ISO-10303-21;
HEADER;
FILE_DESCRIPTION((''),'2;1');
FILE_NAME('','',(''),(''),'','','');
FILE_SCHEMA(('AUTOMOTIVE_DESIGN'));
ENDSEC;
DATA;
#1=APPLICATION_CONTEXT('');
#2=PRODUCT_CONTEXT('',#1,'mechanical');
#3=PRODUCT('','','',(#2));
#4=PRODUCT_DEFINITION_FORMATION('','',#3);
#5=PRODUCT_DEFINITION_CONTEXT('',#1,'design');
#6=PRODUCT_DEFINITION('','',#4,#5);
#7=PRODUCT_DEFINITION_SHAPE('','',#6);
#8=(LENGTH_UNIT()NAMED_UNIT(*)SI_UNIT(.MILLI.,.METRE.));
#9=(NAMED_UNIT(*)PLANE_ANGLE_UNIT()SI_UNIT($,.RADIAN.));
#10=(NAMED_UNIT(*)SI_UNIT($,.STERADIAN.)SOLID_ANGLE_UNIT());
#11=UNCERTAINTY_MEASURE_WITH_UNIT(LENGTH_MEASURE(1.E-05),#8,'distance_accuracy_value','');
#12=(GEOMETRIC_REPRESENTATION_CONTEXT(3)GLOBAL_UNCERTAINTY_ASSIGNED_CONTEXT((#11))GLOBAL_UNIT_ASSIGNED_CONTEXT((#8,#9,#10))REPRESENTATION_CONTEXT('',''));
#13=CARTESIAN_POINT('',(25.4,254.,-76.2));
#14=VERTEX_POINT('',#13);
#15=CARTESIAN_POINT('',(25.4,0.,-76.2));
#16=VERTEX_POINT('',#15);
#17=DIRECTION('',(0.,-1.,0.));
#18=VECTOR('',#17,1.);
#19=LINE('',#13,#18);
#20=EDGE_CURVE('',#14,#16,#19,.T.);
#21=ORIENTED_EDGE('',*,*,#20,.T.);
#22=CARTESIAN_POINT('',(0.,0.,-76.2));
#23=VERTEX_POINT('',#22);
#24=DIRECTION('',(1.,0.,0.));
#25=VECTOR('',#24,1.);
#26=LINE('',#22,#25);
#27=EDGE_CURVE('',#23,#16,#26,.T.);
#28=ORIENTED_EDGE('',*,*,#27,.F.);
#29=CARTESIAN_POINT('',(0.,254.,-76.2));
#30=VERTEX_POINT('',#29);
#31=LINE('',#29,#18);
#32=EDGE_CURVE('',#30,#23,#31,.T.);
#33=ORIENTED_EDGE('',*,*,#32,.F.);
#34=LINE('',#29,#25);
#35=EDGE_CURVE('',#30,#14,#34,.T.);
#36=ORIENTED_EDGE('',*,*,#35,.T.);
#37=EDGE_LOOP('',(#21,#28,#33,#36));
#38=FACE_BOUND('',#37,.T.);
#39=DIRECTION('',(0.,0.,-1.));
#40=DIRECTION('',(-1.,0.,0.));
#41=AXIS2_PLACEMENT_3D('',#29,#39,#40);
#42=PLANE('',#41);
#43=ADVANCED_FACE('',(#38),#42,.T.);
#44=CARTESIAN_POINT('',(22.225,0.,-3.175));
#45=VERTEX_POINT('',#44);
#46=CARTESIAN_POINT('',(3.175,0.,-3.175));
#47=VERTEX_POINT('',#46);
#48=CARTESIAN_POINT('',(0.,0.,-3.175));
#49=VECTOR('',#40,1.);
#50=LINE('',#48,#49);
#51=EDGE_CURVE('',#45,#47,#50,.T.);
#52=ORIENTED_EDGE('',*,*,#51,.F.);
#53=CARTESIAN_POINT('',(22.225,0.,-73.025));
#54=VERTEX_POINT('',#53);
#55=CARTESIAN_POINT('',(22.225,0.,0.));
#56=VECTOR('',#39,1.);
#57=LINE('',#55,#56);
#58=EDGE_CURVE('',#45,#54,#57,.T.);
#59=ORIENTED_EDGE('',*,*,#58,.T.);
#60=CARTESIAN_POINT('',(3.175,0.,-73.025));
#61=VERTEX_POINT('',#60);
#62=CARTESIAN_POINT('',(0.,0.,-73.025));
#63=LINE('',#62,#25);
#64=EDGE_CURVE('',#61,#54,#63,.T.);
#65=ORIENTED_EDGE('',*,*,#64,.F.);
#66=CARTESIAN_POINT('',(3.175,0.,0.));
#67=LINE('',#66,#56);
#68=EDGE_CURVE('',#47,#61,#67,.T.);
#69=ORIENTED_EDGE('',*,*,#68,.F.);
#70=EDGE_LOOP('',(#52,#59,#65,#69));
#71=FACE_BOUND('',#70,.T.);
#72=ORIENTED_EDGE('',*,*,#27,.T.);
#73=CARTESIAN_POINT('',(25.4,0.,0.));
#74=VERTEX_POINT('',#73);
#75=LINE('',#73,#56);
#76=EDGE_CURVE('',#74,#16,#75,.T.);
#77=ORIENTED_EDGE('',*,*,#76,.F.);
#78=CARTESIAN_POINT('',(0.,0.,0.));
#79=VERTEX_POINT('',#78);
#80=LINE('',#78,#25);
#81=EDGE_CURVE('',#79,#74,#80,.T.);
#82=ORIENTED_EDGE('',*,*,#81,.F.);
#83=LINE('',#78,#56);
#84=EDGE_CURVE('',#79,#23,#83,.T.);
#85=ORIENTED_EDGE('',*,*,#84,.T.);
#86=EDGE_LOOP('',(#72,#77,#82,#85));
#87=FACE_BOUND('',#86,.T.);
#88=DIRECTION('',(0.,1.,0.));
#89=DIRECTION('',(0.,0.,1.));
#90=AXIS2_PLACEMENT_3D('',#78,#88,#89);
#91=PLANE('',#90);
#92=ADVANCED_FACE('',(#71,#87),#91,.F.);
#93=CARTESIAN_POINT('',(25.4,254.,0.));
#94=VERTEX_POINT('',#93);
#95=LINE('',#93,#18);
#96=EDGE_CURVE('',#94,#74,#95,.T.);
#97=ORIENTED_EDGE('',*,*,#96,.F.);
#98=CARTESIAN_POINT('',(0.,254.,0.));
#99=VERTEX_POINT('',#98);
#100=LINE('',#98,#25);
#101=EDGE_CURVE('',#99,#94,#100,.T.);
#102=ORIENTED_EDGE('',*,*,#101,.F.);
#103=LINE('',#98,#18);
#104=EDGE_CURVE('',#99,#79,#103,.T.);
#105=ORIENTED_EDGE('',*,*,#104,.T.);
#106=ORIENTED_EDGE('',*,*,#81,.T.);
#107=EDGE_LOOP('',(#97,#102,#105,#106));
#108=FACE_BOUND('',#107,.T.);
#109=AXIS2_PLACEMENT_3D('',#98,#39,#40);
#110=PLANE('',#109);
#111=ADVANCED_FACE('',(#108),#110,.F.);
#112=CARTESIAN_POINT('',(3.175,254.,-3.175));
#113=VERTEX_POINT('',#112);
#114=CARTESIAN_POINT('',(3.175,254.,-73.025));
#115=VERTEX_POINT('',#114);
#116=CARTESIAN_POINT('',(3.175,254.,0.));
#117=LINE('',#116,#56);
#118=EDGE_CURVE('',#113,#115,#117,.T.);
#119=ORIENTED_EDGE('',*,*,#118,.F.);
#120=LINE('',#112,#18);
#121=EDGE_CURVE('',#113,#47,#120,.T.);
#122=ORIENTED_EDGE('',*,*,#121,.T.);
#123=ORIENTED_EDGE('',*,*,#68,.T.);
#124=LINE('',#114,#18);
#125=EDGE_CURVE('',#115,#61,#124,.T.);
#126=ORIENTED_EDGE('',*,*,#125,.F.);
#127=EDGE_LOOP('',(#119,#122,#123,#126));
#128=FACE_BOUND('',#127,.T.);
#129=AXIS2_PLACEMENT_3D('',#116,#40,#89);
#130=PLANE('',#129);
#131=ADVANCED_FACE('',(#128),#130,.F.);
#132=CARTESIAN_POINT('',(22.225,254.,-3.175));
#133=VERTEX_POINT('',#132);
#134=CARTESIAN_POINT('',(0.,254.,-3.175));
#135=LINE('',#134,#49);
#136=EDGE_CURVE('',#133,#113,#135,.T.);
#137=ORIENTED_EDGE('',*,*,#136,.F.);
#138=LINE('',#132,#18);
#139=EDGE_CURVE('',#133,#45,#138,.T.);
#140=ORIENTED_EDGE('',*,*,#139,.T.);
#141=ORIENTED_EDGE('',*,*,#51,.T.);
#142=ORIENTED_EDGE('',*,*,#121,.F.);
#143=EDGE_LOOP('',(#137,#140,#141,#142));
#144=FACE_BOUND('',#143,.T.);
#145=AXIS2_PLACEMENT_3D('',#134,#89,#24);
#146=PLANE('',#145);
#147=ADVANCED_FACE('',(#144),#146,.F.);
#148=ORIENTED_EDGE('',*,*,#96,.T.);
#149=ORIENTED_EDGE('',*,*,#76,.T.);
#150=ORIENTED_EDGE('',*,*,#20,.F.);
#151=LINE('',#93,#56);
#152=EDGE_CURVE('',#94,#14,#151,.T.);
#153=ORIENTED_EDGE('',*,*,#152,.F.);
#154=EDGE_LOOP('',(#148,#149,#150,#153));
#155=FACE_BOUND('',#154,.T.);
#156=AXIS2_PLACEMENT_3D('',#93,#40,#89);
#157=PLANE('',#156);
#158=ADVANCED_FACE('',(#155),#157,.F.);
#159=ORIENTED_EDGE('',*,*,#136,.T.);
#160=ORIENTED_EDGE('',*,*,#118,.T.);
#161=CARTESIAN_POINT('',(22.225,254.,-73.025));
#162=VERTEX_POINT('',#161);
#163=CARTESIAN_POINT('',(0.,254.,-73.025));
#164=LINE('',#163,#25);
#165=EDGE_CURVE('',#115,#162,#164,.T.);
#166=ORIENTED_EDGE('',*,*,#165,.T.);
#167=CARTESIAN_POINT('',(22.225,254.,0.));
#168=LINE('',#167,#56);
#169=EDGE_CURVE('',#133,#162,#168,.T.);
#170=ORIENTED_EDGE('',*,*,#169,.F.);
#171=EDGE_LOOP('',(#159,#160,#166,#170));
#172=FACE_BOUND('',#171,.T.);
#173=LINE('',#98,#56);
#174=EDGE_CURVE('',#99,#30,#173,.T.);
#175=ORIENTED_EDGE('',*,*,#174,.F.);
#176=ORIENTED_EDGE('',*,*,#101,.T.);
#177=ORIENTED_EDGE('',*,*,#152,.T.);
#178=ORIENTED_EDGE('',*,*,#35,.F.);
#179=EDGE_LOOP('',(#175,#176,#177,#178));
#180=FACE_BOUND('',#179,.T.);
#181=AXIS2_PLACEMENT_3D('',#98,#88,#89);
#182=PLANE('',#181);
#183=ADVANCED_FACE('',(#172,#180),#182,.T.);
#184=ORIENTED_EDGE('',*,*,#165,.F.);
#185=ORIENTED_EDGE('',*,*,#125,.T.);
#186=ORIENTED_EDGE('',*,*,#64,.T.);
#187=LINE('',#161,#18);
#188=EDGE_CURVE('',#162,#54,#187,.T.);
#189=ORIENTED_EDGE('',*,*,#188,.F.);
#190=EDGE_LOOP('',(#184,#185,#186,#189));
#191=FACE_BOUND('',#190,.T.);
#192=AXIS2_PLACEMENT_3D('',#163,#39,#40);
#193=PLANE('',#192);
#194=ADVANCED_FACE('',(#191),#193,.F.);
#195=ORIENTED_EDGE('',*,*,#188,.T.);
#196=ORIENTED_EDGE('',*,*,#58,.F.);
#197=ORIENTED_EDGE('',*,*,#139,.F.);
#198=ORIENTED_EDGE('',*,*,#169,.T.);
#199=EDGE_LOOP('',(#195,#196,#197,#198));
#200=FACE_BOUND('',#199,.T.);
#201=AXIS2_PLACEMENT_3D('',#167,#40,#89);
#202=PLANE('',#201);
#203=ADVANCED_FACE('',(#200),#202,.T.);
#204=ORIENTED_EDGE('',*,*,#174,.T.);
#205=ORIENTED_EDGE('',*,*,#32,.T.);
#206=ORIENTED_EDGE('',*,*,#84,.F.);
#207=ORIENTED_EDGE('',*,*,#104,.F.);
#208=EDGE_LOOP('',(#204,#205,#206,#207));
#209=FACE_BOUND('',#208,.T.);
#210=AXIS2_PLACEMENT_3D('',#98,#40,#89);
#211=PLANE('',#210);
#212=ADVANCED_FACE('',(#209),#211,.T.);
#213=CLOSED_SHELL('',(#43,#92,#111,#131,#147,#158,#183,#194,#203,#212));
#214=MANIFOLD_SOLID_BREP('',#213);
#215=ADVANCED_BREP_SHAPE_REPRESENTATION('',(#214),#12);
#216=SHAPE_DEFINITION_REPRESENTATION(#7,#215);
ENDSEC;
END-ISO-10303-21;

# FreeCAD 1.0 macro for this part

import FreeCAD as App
import Part
import Sketcher
Q = App.Units.Quantity


def add_polygon(sketch, points):
    """Adds a closed chain of lines whose ends are joined by coincident constraints."""
    first, n = sketch.GeometryCount, len(points)
    for a, b in zip(points, points[1:] + points[:1]):
        sketch.addGeometry(Part.LineSegment(App.Vector(*a, 0), App.Vector(*b, 0)), False)
    for i in range(n):
        sketch.addConstraint(Sketcher.Constraint("Coincident", first + i, 2, first + (i + 1) % n, 1))

doc = App.newDocument("Part")
params = doc.addObject("Spreadsheet::Sheet", "Params")
for row, (alias, value) in enumerate([
    ("sketch1_width", "1 in"),
    ("sketch1_height", "3 in"),
    ("sketch1_width2", "0.75 in"),
    ("sketch1_height2", "2.75 in"),
    ("pad1_length", "10 in"),
], start=1):
    params.set(f"A{row}", alias)
    params.set(f"B{row}", "=" + value)
    params.setAlias(f"B{row}", alias)

body = doc.addObject("PartDesign::Body", "Body")

sketch1 = doc.addObject("Sketcher::SketchObject", "Sketch")
body.addObject(sketch1)
sketch1.AttachmentSupport = (doc.XZ_Plane, [""])
sketch1.MapMode = "FlatFace"
add_polygon(sketch1, [(0, 0), (25.4, 0), (25.4, -76.2), (0, -76.2)])
add_polygon(sketch1, [(22.225, -73.025), (22.225, -3.175), (3.175, -3.175), (3.175, -73.025)])
sketch1.addConstraint(Sketcher.Constraint("Horizontal", 0))
sketch1.addConstraint(Sketcher.Constraint("Vertical", 1))
sketch1.addConstraint(Sketcher.Constraint("Horizontal", 2))
sketch1.addConstraint(Sketcher.Constraint("Vertical", 3))
sketch1.addConstraint(Sketcher.Constraint("Vertical", 4))
sketch1.addConstraint(Sketcher.Constraint("Horizontal", 5))
sketch1.addConstraint(Sketcher.Constraint("Vertical", 6))
sketch1.addConstraint(Sketcher.Constraint("Horizontal", 7))
sketch1.addConstraint(Sketcher.Constraint("Coincident", 3, 2, -1, 1))
sketch1.addConstraint(Sketcher.Constraint("DistanceX", 0, 1, 0, 2, Q("1 in")))
sketch1.addConstraint(Sketcher.Constraint("DistanceY", 1, 2, 1, 1, Q("3 in")))
sketch1.addConstraint(Sketcher.Constraint("DistanceX", 5, 2, 5, 1, Q("0.75 in")))
sketch1.addConstraint(Sketcher.Constraint("DistanceY", 4, 1, 4, 2, Q("2.75 in")))
sketch1.addConstraint(Sketcher.Constraint("DistanceX", -1, 1, 4, 2, Q("0.875 in")))
sketch1.addConstraint(Sketcher.Constraint("DistanceY", 4, 2, -1, 1, Q("0.125 in")))
sketch1.setExpression("Constraints[17]", "Params.sketch1_width")
sketch1.setExpression("Constraints[18]", "Params.sketch1_height")
sketch1.setExpression("Constraints[19]", "Params.sketch1_width2")
sketch1.setExpression("Constraints[20]", "Params.sketch1_height2")
pad1 = doc.addObject("PartDesign::Pad", "Pad")
body.addObject(pad1)
pad1.Profile = sketch1
pad1.setExpression("Length", "Params.pad1_length")
pad1.Reversed = True

doc.recompute()
